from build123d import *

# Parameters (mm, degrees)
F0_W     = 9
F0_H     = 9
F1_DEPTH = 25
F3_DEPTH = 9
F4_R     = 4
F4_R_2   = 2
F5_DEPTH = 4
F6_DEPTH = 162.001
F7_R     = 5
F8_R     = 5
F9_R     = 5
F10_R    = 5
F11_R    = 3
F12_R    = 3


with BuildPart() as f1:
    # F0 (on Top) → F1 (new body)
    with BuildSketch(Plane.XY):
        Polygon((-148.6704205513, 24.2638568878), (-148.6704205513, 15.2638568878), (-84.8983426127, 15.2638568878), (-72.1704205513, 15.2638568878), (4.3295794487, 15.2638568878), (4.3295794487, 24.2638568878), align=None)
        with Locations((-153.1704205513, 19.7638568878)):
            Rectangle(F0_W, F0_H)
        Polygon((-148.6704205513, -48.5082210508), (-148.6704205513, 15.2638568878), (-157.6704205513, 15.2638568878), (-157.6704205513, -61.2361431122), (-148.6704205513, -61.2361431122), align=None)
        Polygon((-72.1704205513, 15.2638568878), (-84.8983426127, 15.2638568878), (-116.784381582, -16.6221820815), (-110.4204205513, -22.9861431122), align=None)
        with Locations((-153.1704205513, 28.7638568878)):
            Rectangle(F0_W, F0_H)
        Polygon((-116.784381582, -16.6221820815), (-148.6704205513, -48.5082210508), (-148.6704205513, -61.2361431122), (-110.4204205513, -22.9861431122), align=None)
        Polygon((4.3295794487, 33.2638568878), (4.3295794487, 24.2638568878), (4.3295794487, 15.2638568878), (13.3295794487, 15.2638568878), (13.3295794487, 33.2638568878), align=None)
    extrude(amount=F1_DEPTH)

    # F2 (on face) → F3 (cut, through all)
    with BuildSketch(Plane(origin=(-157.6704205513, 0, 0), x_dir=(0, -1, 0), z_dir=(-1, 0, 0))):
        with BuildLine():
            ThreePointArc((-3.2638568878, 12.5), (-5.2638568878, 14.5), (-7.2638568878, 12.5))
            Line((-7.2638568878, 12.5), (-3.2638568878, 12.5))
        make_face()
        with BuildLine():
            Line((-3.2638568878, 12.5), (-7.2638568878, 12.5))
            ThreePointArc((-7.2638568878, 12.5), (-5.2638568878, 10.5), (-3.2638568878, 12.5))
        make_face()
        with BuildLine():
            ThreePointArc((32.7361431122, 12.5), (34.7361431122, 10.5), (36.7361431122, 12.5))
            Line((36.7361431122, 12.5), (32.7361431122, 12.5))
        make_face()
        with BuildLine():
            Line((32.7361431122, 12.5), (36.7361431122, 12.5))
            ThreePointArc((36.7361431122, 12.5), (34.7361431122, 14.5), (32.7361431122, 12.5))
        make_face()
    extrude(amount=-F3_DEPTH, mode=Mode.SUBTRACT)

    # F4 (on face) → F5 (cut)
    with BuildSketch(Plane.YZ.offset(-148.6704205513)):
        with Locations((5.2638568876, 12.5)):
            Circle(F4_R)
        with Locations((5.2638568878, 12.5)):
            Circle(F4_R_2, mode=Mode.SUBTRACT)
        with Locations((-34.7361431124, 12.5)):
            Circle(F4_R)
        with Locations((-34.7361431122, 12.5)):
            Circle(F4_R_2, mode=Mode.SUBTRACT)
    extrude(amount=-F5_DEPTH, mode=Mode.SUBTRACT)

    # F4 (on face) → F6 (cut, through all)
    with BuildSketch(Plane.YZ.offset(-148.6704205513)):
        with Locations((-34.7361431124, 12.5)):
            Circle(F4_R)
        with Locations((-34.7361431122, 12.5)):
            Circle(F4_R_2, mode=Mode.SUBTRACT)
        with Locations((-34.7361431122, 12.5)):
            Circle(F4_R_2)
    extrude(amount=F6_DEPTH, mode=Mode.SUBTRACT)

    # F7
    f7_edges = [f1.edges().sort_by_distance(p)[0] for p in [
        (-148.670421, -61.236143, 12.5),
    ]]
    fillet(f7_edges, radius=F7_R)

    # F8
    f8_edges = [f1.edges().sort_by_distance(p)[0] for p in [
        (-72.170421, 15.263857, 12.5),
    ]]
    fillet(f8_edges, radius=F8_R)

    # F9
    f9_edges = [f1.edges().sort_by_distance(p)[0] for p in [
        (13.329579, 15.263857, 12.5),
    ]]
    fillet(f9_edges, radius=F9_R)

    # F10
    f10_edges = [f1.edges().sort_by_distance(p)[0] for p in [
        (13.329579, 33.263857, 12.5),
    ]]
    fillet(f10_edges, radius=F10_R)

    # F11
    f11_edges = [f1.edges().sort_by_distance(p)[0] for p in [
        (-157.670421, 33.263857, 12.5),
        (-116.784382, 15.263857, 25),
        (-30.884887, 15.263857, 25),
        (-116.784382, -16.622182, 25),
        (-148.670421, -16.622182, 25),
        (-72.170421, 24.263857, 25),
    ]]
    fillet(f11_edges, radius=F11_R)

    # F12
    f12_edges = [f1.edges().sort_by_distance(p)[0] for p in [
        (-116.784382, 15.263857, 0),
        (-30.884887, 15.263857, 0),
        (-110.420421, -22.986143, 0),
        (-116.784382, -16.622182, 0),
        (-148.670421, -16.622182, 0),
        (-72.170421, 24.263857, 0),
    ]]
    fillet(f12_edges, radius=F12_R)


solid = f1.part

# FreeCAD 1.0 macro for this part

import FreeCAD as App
import Part
import Sketcher


def edges_at(feature, points):
    """Names of the edges that pass closest to the given points."""
    edges = feature.Shape.Edges
    near = lambda p: min(range(len(edges)), key=lambda i: edges[i].distToShape(Part.Vertex(*p))[0])
    return sorted({f"Edge{near(p) + 1}" for p in points})

doc = App.newDocument("Part")
body = doc.addObject("PartDesign::Body", "Body")

# Sketch on XY plane
sketch1 = body.newObject("Sketcher::SketchObject", "Sketch")
sketch1.AttachmentSupport = (doc.getObject("XY_Plane"), [""])
sketch1.MapMode = "FlatFace"
sketch1.addGeometry([
    Part.LineSegment(App.Vector(4, 24, 0), App.Vector(-149, 24, 0)),  # 0
    Part.LineSegment(App.Vector(-149, 24, 0), App.Vector(-149, 33, 0)),  # 1
    Part.LineSegment(App.Vector(-149, 33, 0), App.Vector(-158, 33, 0)),  # 2
    Part.LineSegment(App.Vector(-158, 33, 0), App.Vector(-158, -61, 0)),  # 3
    Part.LineSegment(App.Vector(-158, -61, 0), App.Vector(-149, -61, 0)),  # 4
    Part.LineSegment(App.Vector(-149, -61, 0), App.Vector(-72, 15, 0)),  # 5
    Part.LineSegment(App.Vector(-72, 15, 0), App.Vector(13, 15, 0)),  # 6
    Part.LineSegment(App.Vector(13, 15, 0), App.Vector(13, 33, 0)),  # 7
    Part.LineSegment(App.Vector(13, 33, 0), App.Vector(4, 33, 0)),  # 8
    Part.LineSegment(App.Vector(4, 33, 0), App.Vector(4, 24, 0)),  # 9
    Part.LineSegment(App.Vector(-149, -49, 0), App.Vector(-149, 15, 0)),  # 10
    Part.LineSegment(App.Vector(-149, 15, 0), App.Vector(-85, 15, 0)),  # 11
    Part.LineSegment(App.Vector(-85, 15, 0), App.Vector(-149, -49, 0)),  # 12
], False)
sketch1.addConstraint([
    Sketcher.Constraint("Coincident", 0, 2, 1, 1),
    Sketcher.Constraint("Coincident", 1, 2, 2, 1),
    Sketcher.Constraint("Coincident", 2, 2, 3, 1),
    Sketcher.Constraint("Coincident", 3, 2, 4, 1),
    Sketcher.Constraint("Coincident", 4, 2, 5, 1),
    Sketcher.Constraint("Coincident", 5, 2, 6, 1),
    Sketcher.Constraint("Coincident", 6, 2, 7, 1),
    Sketcher.Constraint("Coincident", 7, 2, 8, 1),
    Sketcher.Constraint("Coincident", 8, 2, 9, 1),
    Sketcher.Constraint("Coincident", 9, 2, 0, 1),
    Sketcher.Constraint("Coincident", 10, 2, 11, 1),
    Sketcher.Constraint("Coincident", 11, 2, 12, 1),
    Sketcher.Constraint("Coincident", 12, 2, 10, 1),
    Sketcher.Constraint("Horizontal", 0),
    Sketcher.Constraint("Vertical", 1),
    Sketcher.Constraint("Horizontal", 2),
    Sketcher.Constraint("Vertical", 3),
    Sketcher.Constraint("Horizontal", 4),
    Sketcher.Constraint("Horizontal", 6),
    Sketcher.Constraint("Vertical", 7),
    Sketcher.Constraint("Horizontal", 8),
    Sketcher.Constraint("Vertical", 9),
    Sketcher.Constraint("Vertical", 10),
    Sketcher.Constraint("Horizontal", 11),
    Sketcher.Constraint("Parallel", 5, 12),
    Sketcher.Constraint("Horizontal", 2, 2, 7, 2),
    Sketcher.Constraint("Horizontal", 6, 2, 10, 2),
    Sketcher.Constraint("Vertical", 1, 2, 4, 2),
    Sketcher.Constraint("Vertical", 4, 2, 10, 2),
    Sketcher.Constraint("Equal", 4, 8),
    Sketcher.Constraint("Equal", 8, 1),
    Sketcher.Constraint("Equal", 11, 10),
    Sketcher.Constraint("DistanceX", 0, 2, 0, 1, 153.0),
    Sketcher.Constraint("DistanceX", 2, 2, 2, 1, 9.0),
    Sketcher.Constraint("DistanceY", 7, 1, 7, 2, 18.0),
    Sketcher.Constraint("DistanceX", 6, 1, 6, 2, 85.5),
    Sketcher.Constraint("DistanceX", 11, 1, 11, 2, 63.772078),
    Sketcher.Constraint("DistanceX", 0, 2, -1, 1, 148.670421),
    Sketcher.Constraint("DistanceY", 12, 2, -1, 1, 48.508221),
])
pad1 = body.newObject("PartDesign::Pad", "Pad")
pad1.Profile = sketch1
pad1.Length = 25

# Sketch on YZ plane
sketch2 = body.newObject("Sketcher::SketchObject", "Sketch001")
sketch2.AttachmentSupport = (doc.getObject("YZ_Plane"), [""])
sketch2.MapMode = "FlatFace"
sketch2.AttachmentOffset = App.Placement(App.Vector(0, 0, -157.670421), App.Rotation())
sketch2.addGeometry([
    Part.Circle(App.Vector(5.3, 12.5, 0), App.Vector(0, 0, 1), 2),
    Part.Circle(App.Vector(-34.7, 12.5, 0), App.Vector(0, 0, 1), 2),
], False)
sketch2.addConstraint([
    Sketcher.Constraint("Equal", 0, 1),
    Sketcher.Constraint("Horizontal", 0, 3, 1, 3),
    Sketcher.Constraint("Diameter", 0, 4.0),
    Sketcher.Constraint("DistanceX", 1, 3, 0, 3, 40.0),
    Sketcher.Constraint("DistanceY", -1, 1, 0, 3, 12.5),
    Sketcher.Constraint("DistanceX", -1, 1, 0, 3, 5.263857),
])
pocket1 = body.newObject("PartDesign::Pocket", "Pocket")
pocket1.Profile = sketch2
pocket1.Length = 9
pocket1.Reversed = True

# Sketch on YZ plane
sketch3 = body.newObject("Sketcher::SketchObject", "Sketch002")
sketch3.AttachmentSupport = (doc.getObject("YZ_Plane"), [""])
sketch3.MapMode = "FlatFace"
sketch3.AttachmentOffset = App.Placement(App.Vector(0, 0, -148.670421), App.Rotation())
sketch3.addGeometry([
    Part.Circle(App.Vector(5.3, 12.5, 0), App.Vector(0, 0, 1), 4),
    Part.Circle(App.Vector(5.3, 12.5, 0), App.Vector(0, 0, 1), 2),
    Part.Circle(App.Vector(-34.7, 12.5, 0), App.Vector(0, 0, 1), 4),
    Part.Circle(App.Vector(-34.7, 12.5, 0), App.Vector(0, 0, 1), 2),
], False)
sketch3.addConstraint([
    Sketcher.Constraint("Coincident", 1, 3, 0, 3),
    Sketcher.Constraint("Coincident", 3, 3, 2, 3),
    Sketcher.Constraint("Equal", 0, 2),
    Sketcher.Constraint("Equal", 1, 3),
    Sketcher.Constraint("Horizontal", 1, 3, 2, 3),
    Sketcher.Constraint("Diameter", 0, 8.0),
    Sketcher.Constraint("Diameter", 1, 4.0),
    Sketcher.Constraint("DistanceX", 2, 3, 0, 3, 40.0),
    Sketcher.Constraint("DistanceY", -1, 1, 0, 3, 12.5),
    Sketcher.Constraint("DistanceX", -1, 1, 0, 3, 5.263857),
])
pocket2 = body.newObject("PartDesign::Pocket", "Pocket001")
pocket2.Profile = sketch3
pocket2.Length = 4

# Sketch on YZ plane
sketch4 = body.newObject("Sketcher::SketchObject", "Sketch003")
sketch4.AttachmentSupport = (doc.getObject("YZ_Plane"), [""])
sketch4.MapMode = "FlatFace"
sketch4.AttachmentOffset = App.Placement(App.Vector(0, 0, -148.670421), App.Rotation())
sketch4.addGeometry(Part.Circle(App.Vector(-34.7, 12.5, 0), App.Vector(0, 0, 1), 4), False)
sketch4.addConstraint([
    Sketcher.Constraint("Diameter", 0, 8.0),
    Sketcher.Constraint("DistanceY", -1, 1, 0, 3, 12.5),
    Sketcher.Constraint("DistanceX", 0, 3, -1, 1, 34.736143),
])
pocket3 = body.newObject("PartDesign::Pocket", "Pocket002")
pocket3.Profile = sketch4
pocket3.Type = "ThroughAll"
pocket3.Reversed = True
doc.recompute()

fillet = body.newObject("PartDesign::Fillet", "Fillet")
fillet.Base = (pocket3, edges_at(pocket3, [(-148.67, -61.236, 12.5)]))
fillet.Radius = 5
doc.recompute()

fillet2 = body.newObject("PartDesign::Fillet", "Fillet001")
fillet2.Base = (fillet, edges_at(fillet, [(-72.17, 15.264, 12.5)]))
fillet2.Radius = 5
doc.recompute()

fillet3 = body.newObject("PartDesign::Fillet", "Fillet002")
fillet3.Base = (fillet2, edges_at(fillet2, [(13.33, 15.264, 12.5)]))
fillet3.Radius = 5
doc.recompute()

fillet4 = body.newObject("PartDesign::Fillet", "Fillet003")
fillet4.Base = (fillet3, edges_at(fillet3, [(13.33, 33.264, 12.5)]))
fillet4.Radius = 5
doc.recompute()

fillet5 = body.newObject("PartDesign::Fillet", "Fillet004")
fillet5.Base = (fillet4, edges_at(fillet4, [
    (-157.67, 33.264, 12.5),
    (-116.784, 15.264, 25),
    (-30.885, 15.264, 25),
    (-116.784, -16.622, 25),
    (-148.67, -16.622, 25),
    (-72.17, 24.264, 25),
]))
fillet5.Radius = 3
doc.recompute()

fillet6 = body.newObject("PartDesign::Fillet", "Fillet005")
fillet6.Base = (fillet5, edges_at(fillet5, [
    (-116.784, 15.264, 0),
    (-30.885, 15.264, 0),
    (-110.42, -22.986, 0),
    (-116.784, -16.622, 0),
    (-148.67, -16.622, 0),
    (-72.17, 24.264, 0),
]))
fillet6.Radius = 3

doc.recompute()
